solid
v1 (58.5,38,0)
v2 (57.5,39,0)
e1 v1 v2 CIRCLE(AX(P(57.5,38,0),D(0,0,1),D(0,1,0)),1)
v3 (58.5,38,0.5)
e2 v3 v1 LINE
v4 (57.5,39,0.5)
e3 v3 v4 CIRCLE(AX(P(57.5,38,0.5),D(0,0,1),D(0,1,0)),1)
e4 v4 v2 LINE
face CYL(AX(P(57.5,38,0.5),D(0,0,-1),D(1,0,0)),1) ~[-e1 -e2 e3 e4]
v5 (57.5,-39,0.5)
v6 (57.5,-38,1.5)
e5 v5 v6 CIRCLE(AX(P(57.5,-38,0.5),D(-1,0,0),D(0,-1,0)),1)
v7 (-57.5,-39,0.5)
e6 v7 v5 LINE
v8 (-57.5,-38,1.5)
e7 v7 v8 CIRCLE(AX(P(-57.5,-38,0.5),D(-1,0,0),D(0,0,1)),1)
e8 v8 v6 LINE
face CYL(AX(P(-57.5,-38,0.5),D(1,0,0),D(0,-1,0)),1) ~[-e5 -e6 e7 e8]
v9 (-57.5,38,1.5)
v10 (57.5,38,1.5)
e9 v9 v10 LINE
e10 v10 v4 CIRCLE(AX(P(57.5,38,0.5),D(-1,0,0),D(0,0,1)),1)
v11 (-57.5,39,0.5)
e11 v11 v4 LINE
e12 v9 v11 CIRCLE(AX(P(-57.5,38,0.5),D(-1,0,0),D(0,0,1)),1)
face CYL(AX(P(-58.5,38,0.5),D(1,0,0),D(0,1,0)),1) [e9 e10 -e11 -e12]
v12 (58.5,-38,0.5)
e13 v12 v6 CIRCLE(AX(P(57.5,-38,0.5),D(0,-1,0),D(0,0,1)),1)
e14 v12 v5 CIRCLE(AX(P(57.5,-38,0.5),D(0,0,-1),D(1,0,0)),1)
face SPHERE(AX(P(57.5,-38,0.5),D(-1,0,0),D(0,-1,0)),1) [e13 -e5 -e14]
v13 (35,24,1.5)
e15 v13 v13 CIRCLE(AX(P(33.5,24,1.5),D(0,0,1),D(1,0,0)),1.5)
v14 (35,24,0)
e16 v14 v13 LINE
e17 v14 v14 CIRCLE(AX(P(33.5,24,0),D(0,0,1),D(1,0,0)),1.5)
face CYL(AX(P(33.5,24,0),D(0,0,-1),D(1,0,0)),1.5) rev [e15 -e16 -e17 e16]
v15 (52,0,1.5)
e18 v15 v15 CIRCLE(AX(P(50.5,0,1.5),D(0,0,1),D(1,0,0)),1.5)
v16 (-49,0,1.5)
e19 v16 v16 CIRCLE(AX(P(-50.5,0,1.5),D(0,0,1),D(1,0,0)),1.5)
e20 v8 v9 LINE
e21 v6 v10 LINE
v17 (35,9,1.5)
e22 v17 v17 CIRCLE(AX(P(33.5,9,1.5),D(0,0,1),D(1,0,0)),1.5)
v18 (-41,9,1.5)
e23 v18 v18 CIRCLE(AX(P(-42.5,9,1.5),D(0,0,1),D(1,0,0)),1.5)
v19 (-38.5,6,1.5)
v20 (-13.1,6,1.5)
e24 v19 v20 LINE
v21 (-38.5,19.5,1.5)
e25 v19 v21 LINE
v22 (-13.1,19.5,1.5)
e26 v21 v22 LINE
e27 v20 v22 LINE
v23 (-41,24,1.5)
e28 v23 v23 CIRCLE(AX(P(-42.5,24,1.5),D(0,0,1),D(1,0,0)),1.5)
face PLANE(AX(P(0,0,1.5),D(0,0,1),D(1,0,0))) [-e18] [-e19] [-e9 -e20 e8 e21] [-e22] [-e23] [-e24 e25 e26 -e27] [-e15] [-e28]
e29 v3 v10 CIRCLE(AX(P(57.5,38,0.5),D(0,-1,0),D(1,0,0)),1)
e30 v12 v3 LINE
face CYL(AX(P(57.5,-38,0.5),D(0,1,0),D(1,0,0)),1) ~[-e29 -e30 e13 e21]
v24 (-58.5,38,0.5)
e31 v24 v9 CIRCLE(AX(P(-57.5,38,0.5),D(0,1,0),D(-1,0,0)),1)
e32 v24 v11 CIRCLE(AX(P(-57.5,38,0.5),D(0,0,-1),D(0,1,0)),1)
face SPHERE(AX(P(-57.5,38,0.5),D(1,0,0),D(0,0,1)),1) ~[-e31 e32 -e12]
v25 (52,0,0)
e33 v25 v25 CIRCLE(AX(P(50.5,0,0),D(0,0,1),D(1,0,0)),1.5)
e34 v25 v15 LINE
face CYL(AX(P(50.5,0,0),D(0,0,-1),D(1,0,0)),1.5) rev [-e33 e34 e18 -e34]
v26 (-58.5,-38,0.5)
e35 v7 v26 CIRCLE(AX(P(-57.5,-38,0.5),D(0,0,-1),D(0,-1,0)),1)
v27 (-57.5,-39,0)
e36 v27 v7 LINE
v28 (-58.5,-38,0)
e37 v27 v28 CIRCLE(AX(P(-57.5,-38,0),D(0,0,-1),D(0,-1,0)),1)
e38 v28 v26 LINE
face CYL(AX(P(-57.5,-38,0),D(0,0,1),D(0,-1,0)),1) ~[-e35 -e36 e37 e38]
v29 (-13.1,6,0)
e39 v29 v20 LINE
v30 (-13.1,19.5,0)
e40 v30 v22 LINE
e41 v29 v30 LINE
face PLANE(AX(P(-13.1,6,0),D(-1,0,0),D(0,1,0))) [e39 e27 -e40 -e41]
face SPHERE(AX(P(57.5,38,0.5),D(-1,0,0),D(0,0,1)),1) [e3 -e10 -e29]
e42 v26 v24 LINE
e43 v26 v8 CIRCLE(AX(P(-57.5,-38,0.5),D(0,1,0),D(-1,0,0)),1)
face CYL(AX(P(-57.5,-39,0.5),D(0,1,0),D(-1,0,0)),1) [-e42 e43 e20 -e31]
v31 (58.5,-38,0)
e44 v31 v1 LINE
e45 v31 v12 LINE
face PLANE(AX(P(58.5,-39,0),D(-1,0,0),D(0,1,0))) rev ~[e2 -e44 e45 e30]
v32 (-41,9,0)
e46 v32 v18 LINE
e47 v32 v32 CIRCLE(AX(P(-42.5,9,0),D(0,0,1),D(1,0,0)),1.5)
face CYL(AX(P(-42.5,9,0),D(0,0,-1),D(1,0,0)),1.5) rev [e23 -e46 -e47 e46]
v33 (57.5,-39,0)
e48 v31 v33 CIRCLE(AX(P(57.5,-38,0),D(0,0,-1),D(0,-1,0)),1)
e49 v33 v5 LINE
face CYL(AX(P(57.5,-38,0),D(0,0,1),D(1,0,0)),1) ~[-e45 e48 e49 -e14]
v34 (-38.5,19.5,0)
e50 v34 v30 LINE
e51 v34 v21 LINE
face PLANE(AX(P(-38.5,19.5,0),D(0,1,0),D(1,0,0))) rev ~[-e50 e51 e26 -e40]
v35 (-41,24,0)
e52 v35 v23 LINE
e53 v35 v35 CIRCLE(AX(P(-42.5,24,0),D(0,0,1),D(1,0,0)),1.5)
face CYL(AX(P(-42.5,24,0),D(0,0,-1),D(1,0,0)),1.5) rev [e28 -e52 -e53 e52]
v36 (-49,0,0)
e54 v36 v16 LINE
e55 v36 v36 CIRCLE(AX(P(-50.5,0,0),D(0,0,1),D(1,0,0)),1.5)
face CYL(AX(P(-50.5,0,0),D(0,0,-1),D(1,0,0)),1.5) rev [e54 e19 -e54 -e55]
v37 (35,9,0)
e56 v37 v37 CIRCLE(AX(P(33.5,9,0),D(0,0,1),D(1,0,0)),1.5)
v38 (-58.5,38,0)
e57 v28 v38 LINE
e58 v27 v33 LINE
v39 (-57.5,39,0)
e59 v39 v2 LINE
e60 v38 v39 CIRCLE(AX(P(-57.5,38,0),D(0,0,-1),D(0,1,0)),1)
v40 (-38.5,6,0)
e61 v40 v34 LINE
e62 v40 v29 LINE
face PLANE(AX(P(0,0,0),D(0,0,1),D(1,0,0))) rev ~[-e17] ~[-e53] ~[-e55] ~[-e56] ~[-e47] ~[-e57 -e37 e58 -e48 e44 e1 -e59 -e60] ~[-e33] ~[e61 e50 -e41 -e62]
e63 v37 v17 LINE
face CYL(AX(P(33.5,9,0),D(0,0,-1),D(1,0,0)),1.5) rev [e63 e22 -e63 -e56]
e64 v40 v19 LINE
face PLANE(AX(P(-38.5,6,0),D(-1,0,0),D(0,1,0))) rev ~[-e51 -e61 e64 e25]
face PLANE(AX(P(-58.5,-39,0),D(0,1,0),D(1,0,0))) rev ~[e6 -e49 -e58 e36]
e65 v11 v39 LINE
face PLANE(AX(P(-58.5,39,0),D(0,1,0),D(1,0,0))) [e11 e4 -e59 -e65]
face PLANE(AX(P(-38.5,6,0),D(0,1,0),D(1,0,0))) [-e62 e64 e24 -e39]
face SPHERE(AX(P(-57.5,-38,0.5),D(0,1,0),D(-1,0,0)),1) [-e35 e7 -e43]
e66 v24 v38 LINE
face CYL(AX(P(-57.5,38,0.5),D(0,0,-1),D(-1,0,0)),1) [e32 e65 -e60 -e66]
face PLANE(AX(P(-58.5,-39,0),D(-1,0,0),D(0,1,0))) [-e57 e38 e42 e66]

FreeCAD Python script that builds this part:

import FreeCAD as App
import Part
import Sketcher


def edges_at(feature, points):
    """Names of the edges that pass closest to the given points."""
    edges = feature.Shape.Edges
    near = lambda p: min(range(len(edges)), key=lambda i: edges[i].distToShape(Part.Vertex(*p))[0])
    return sorted({f"Edge{near(p) + 1}" for p in points})


def add_polygon(sketch, points):
    """Adds a closed chain of lines whose ends are joined by coincident constraints."""
    first, n = sketch.GeometryCount, len(points)
    for a, b in zip(points, points[1:] + points[:1]):
        sketch.addGeometry(Part.LineSegment(App.Vector(*a, 0), App.Vector(*b, 0)), False)
    for i in range(n):
        sketch.addConstraint(Sketcher.Constraint("Coincident", first + i, 2, first + (i + 1) % n, 1))

doc = App.newDocument("Part")
body = doc.addObject("PartDesign::Body", "Body")

# Sketch on XY plane
sketch1 = body.newObject("Sketcher::SketchObject", "Sketch")
sketch1.AttachmentSupport = (doc.getObject("XY_Plane"), [""])
sketch1.MapMode = "FlatFace"
add_polygon(sketch1, [(-58.5, 39), (-58.5, -39), (58.5, -39), (58.5, 39)])  # lines 0-3
sketch1.addGeometry(Part.Circle(App.Vector(-50.5, 0, 0), App.Vector(0, 0, 1), 1.5), False)  # 4
sketch1.addGeometry(Part.Circle(App.Vector(-42.5, 9, 0), App.Vector(0, 0, 1), 1.5), False)  # 5
sketch1.addGeometry(Part.Circle(App.Vector(50.5, 0, 0), App.Vector(0, 0, 1), 1.5), False)  # 6
sketch1.addGeometry(Part.Circle(App.Vector(33.5, 9, 0), App.Vector(0, 0, 1), 1.5), False)  # 7
add_polygon(sketch1, [(-13.1, 6), (-38.5, 6), (-38.5, 19.5), (-13.1, 19.5)])  # lines 8-11
sketch1.addGeometry(Part.Circle(App.Vector(-42.5, 24, 0), App.Vector(0, 0, 1), 1.5), False)  # 12
sketch1.addGeometry(Part.Circle(App.Vector(33.5, 24, 0), App.Vector(0, 0, 1), 1.5), False)  # 13
sketch1.addConstraint(Sketcher.Constraint("Vertical", 0))
sketch1.addConstraint(Sketcher.Constraint("Horizontal", 1))
sketch1.addConstraint(Sketcher.Constraint("Vertical", 2))
sketch1.addConstraint(Sketcher.Constraint("Horizontal", 3))
sketch1.addConstraint(Sketcher.Constraint("Horizontal", 8))
sketch1.addConstraint(Sketcher.Constraint("Vertical", 9))
sketch1.addConstraint(Sketcher.Constraint("Horizontal", 10))
sketch1.addConstraint(Sketcher.Constraint("Vertical", 11))
sketch1.addConstraint(Sketcher.Constraint("Equal", 4, 5))
sketch1.addConstraint(Sketcher.Constraint("Equal", 5, 6))
sketch1.addConstraint(Sketcher.Constraint("Equal", 6, 7))
sketch1.addConstraint(Sketcher.Constraint("Equal", 7, 12))
sketch1.addConstraint(Sketcher.Constraint("Equal", 12, 13))
sketch1.addConstraint(Sketcher.Constraint("Symmetric", 4, 3, 6, 3, -1, 1))
sketch1.addConstraint(Sketcher.Constraint("Symmetric", 0, 2, 2, 2, -1, 1))
sketch1.addConstraint(Sketcher.Constraint("PointOnObject", 4, 3, -1))
sketch1.addConstraint(Sketcher.Constraint("Horizontal", 5, 3, 7, 3))
sketch1.addConstraint(Sketcher.Constraint("Horizontal", 12, 3, 13, 3))
sketch1.addConstraint(Sketcher.Constraint("Vertical", 5, 3, 12, 3))
sketch1.addConstraint(Sketcher.Constraint("Vertical", 7, 3, 13, 3))
sketch1.addConstraint(Sketcher.Constraint("Diameter", 4, 3.0))
sketch1.addConstraint(Sketcher.Constraint("DistanceX", 1, 1, 1, 2, 117.0))
sketch1.addConstraint(Sketcher.Constraint("DistanceY", 0, 2, 0, 1, 78.0))
sketch1.addConstraint(Sketcher.Constraint("DistanceX", 8, 2, 8, 1, 25.4))
sketch1.addConstraint(Sketcher.Constraint("DistanceY", 9, 1, 9, 2, 13.5))
sketch1.addConstraint(Sketcher.Constraint("DistanceY", -1, 1, 5, 3, 9.0))
sketch1.addConstraint(Sketcher.Constraint("DistanceY", -1, 1, 12, 3, 24.0))
sketch1.addConstraint(Sketcher.Constraint("DistanceY", -1, 1, 8, 2, 6.0))
sketch1.addConstraint(Sketcher.Constraint("DistanceX", 4, 3, 5, 3, 8.0))
sketch1.addConstraint(Sketcher.Constraint("DistanceX", 5, 3, 6, 3, 93.0))
sketch1.addConstraint(Sketcher.Constraint("DistanceX", 7, 3, 6, 3, 17.0))
sketch1.addConstraint(Sketcher.Constraint("DistanceX", 5, 3, 8, 2, 4.0))
pad1 = body.newObject("PartDesign::Pad", "Pad")
pad1.Profile = sketch1
pad1.Length = 1.5
doc.recompute()

fillet = body.newObject("PartDesign::Fillet", "Fillet")
fillet.Base = (pad1, edges_at(pad1, [(0, 39, 1.5)]))
fillet.Radius = 1
doc.recompute()

fillet2 = body.newObject("PartDesign::Fillet", "Fillet001")
fillet2.Base = (fillet, edges_at(fillet, [(-58.5, -0.5, 1.5)]))
fillet2.Radius = 1
doc.recompute()

fillet3 = body.newObject("PartDesign::Fillet", "Fillet002")
fillet3.Base = (fillet2, edges_at(fillet2, [(0.5, -39, 1.5)]))
fillet3.Radius = 1
doc.recompute()

fillet4 = body.newObject("PartDesign::Fillet", "Fillet003")
fillet4.Base = (fillet3, edges_at(fillet3, [(58.5, 0, 1.5)]))
fillet4.Radius = 1

doc.recompute()
